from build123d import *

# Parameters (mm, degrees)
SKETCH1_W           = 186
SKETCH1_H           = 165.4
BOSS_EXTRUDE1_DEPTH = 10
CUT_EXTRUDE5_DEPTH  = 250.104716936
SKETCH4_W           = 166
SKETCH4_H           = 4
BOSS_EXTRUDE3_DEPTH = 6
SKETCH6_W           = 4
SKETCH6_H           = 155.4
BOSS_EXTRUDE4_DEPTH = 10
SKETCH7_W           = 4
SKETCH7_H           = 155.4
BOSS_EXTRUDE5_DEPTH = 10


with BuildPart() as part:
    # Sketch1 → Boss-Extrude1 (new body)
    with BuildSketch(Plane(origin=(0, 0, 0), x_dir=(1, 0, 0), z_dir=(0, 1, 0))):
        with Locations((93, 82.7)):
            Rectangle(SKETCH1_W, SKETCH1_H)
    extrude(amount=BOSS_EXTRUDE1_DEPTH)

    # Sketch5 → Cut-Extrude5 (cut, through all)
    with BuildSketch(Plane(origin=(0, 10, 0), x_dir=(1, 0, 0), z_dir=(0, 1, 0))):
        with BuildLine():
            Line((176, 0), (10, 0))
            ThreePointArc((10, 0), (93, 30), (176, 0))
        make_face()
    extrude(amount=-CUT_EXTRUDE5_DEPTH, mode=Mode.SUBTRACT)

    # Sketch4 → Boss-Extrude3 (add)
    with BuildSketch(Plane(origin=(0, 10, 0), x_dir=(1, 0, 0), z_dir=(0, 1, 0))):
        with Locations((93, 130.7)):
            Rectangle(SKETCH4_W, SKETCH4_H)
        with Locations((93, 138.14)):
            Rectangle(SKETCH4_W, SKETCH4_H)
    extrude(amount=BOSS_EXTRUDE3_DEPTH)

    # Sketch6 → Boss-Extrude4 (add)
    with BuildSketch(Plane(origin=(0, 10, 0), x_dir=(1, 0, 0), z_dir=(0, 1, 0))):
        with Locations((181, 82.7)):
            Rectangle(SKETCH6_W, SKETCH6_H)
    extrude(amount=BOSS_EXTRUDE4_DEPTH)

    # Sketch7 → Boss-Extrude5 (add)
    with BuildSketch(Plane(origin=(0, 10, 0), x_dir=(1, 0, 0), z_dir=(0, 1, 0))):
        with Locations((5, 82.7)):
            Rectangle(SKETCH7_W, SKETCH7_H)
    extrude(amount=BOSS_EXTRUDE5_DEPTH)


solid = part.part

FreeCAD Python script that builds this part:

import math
import FreeCAD as App
import Part
import Sketcher

V = App.Vector
Q = App.Units.Quantity

doc = App.newDocument("Part")
body = doc.addObject("PartDesign::Body", "Body")

# Sketch on XZ plane
sketch1 = doc.addObject("Sketcher::SketchObject", "Sketch")
body.addObject(sketch1)
sketch1.AttachmentSupport = (doc.XZ_Plane, [""])
sketch1.MapMode = "FlatFace"
sketch1.addGeometry([
    Part.LineSegment(V(0, -165.4, 0), V(0, 0, 0)),
    Part.LineSegment(V(0, 0, 0), V(186, 0, 0)),
    Part.LineSegment(V(186, 0, 0), V(186, -165.4, 0)),
    Part.LineSegment(V(186, -165.4, 0), V(0, -165.4, 0)),
], False)
sketch1.addConstraint([
    Sketcher.Constraint("Coincident", 0, 2, 1, 1),
    Sketcher.Constraint("Coincident", 1, 2, 2, 1),
    Sketcher.Constraint("Coincident", 2, 2, 3, 1),
    Sketcher.Constraint("Coincident", 3, 2, 0, 1),
    Sketcher.Constraint("Vertical", 0),
    Sketcher.Constraint("Horizontal", 1),
    Sketcher.Constraint("Vertical", 2),
    Sketcher.Constraint("Horizontal", 3),
    Sketcher.Constraint("Coincident", 0, 2, -1, 1),
    Sketcher.Constraint("DistanceX", 1, 1, 1, 2, Q("186 mm")),
    Sketcher.Constraint("DistanceY", 0, 1, 0, 2, Q("165.4 mm")),
])
pad1 = doc.addObject("PartDesign::Pad", "Pad")
body.addObject(pad1)
pad1.Profile = sketch1
pad1.Length = 10
pad1.Reversed = True

# Sketch on XZ plane
sketch2 = doc.addObject("Sketcher::SketchObject", "Sketch001")
body.addObject(sketch2)
sketch2.AttachmentSupport = (doc.XZ_Plane, [""])
sketch2.MapMode = "FlatFace"
sketch2.AttachmentOffset = App.Placement(V(0, 0, -10), App.Rotation())
sketch2.addGeometry([
    Part.LineSegment(V(10, 0, 0), V(176, 0, 0)),
    Part.ArcOfCircle(Part.Circle(V(93, 99.816667, 0), V(0, 0, 1), 129.816667), math.radians(-129.744352), math.radians(-50.255648)),
], False)
sketch2.addConstraint([
    Sketcher.Constraint("Coincident", 0, 1, 1, 1),
    Sketcher.Constraint("Coincident", 1, 2, 0, 2),
    Sketcher.Constraint("Horizontal", 0),
    Sketcher.Constraint("PointOnObject", 0, 1, -1),
    Sketcher.Constraint("DistanceX", 0, 1, 0, 2, Q("166 mm")),
    Sketcher.Constraint("DistanceX", -1, 1, 1, 3, Q("93 mm")),
    Sketcher.Constraint("Radius", 1, Q("129.816667 mm")),
])
pocket1 = doc.addObject("PartDesign::Pocket", "Pocket")
body.addObject(pocket1)
pocket1.Profile = sketch2
pocket1.Type = "ThroughAll"
pocket1.Reversed = True

# Sketch on XZ plane
sketch3 = doc.addObject("Sketcher::SketchObject", "Sketch002")
body.addObject(sketch3)
sketch3.AttachmentSupport = (doc.XZ_Plane, [""])
sketch3.MapMode = "FlatFace"
sketch3.AttachmentOffset = App.Placement(V(0, 0, -10), App.Rotation())
sketch3.addGeometry([
    Part.LineSegment(V(10, -132.7, 0), V(10, -128.7, 0)),  # 0
    Part.LineSegment(V(10, -128.7, 0), V(176, -128.7, 0)),  # 1
    Part.LineSegment(V(176, -128.7, 0), V(176, -132.7, 0)),  # 2
    Part.LineSegment(V(176, -132.7, 0), V(10, -132.7, 0)),  # 3
    Part.LineSegment(V(10, -140.14, 0), V(10, -136.14, 0)),  # 4
    Part.LineSegment(V(10, -136.14, 0), V(176, -136.14, 0)),  # 5
    Part.LineSegment(V(176, -136.14, 0), V(176, -140.14, 0)),  # 6
    Part.LineSegment(V(176, -140.14, 0), V(10, -140.14, 0)),  # 7
], False)
sketch3.addConstraint([
    Sketcher.Constraint("Coincident", 0, 2, 1, 1),
    Sketcher.Constraint("Coincident", 1, 2, 2, 1),
    Sketcher.Constraint("Coincident", 2, 2, 3, 1),
    Sketcher.Constraint("Coincident", 3, 2, 0, 1),
    Sketcher.Constraint("Coincident", 4, 2, 5, 1),
    Sketcher.Constraint("Coincident", 5, 2, 6, 1),
    Sketcher.Constraint("Coincident", 6, 2, 7, 1),
    Sketcher.Constraint("Coincident", 7, 2, 4, 1),
    Sketcher.Constraint("Vertical", 0),
    Sketcher.Constraint("Horizontal", 1),
    Sketcher.Constraint("Vertical", 2),
    Sketcher.Constraint("Horizontal", 3),
    Sketcher.Constraint("Vertical", 4),
    Sketcher.Constraint("Horizontal", 5),
    Sketcher.Constraint("Vertical", 6),
    Sketcher.Constraint("Horizontal", 7),
    Sketcher.Constraint("Vertical", 3, 2, 4, 2),
    Sketcher.Constraint("Vertical", 2, 2, 5, 2),
    Sketcher.Constraint("Equal", 2, 4),
    Sketcher.Constraint("DistanceX", 1, 1, 1, 2, Q("166 mm")),
    Sketcher.Constraint("DistanceY", 0, 1, 0, 2, Q("4 mm")),
    Sketcher.Constraint("DistanceX", -1, 1, 0, 2, Q("10 mm")),
    Sketcher.Constraint("DistanceY", 0, 2, -1, 1, Q("128.7 mm")),
    Sketcher.Constraint("DistanceY", 4, 2, -1, 1, Q("136.14 mm")),
])
pad2 = doc.addObject("PartDesign::Pad", "Pad001")
body.addObject(pad2)
pad2.Profile = sketch3
pad2.Length = 6
pad2.Reversed = True

# Sketch on XZ plane
sketch4 = doc.addObject("Sketcher::SketchObject", "Sketch003")
body.addObject(sketch4)
sketch4.AttachmentSupport = (doc.XZ_Plane, [""])
sketch4.MapMode = "FlatFace"
sketch4.AttachmentOffset = App.Placement(V(0, 0, -10), App.Rotation())
sketch4.addGeometry([
    Part.LineSegment(V(179, -160.4, 0), V(179, -5, 0)),
    Part.LineSegment(V(179, -5, 0), V(183, -5, 0)),
    Part.LineSegment(V(183, -5, 0), V(183, -160.4, 0)),
    Part.LineSegment(V(183, -160.4, 0), V(179, -160.4, 0)),
], False)
sketch4.addConstraint([
    Sketcher.Constraint("Coincident", 0, 2, 1, 1),
    Sketcher.Constraint("Coincident", 1, 2, 2, 1),
    Sketcher.Constraint("Coincident", 2, 2, 3, 1),
    Sketcher.Constraint("Coincident", 3, 2, 0, 1),
    Sketcher.Constraint("Vertical", 0),
    Sketcher.Constraint("Horizontal", 1),
    Sketcher.Constraint("Vertical", 2),
    Sketcher.Constraint("Horizontal", 3),
    Sketcher.Constraint("DistanceX", 1, 1, 1, 2, Q("4 mm")),
    Sketcher.Constraint("DistanceY", 0, 1, 0, 2, Q("155.4 mm")),
    Sketcher.Constraint("DistanceX", -1, 1, 0, 2, Q("179 mm")),
    Sketcher.Constraint("DistanceY", 0, 2, -1, 1, Q("5 mm")),
])
pad3 = doc.addObject("PartDesign::Pad", "Pad002")
body.addObject(pad3)
pad3.Profile = sketch4
pad3.Length = 10
pad3.Reversed = True

# Sketch on XZ plane
sketch5 = doc.addObject("Sketcher::SketchObject", "Sketch004")
body.addObject(sketch5)
sketch5.AttachmentSupport = (doc.XZ_Plane, [""])
sketch5.MapMode = "FlatFace"
sketch5.AttachmentOffset = App.Placement(V(0, 0, -10), App.Rotation())
sketch5.addGeometry([
    Part.LineSegment(V(3, -160.4, 0), V(3, -5, 0)),
    Part.LineSegment(V(3, -5, 0), V(7, -5, 0)),
    Part.LineSegment(V(7, -5, 0), V(7, -160.4, 0)),
    Part.LineSegment(V(7, -160.4, 0), V(3, -160.4, 0)),
], False)
sketch5.addConstraint([
    Sketcher.Constraint("Coincident", 0, 2, 1, 1),
    Sketcher.Constraint("Coincident", 1, 2, 2, 1),
    Sketcher.Constraint("Coincident", 2, 2, 3, 1),
    Sketcher.Constraint("Coincident", 3, 2, 0, 1),
    Sketcher.Constraint("Vertical", 0),
    Sketcher.Constraint("Horizontal", 1),
    Sketcher.Constraint("Vertical", 2),
    Sketcher.Constraint("Horizontal", 3),
    Sketcher.Constraint("DistanceX", 1, 1, 1, 2, Q("4 mm")),
    Sketcher.Constraint("DistanceY", 0, 1, 0, 2, Q("155.4 mm")),
    Sketcher.Constraint("DistanceX", -1, 1, 0, 2, Q("3 mm")),
    Sketcher.Constraint("DistanceY", 0, 2, -1, 1, Q("5 mm")),
])
pad4 = doc.addObject("PartDesign::Pad", "Pad003")
body.addObject(pad4)
pad4.Profile = sketch5
pad4.Length = 10
pad4.Reversed = True

doc.recompute()
